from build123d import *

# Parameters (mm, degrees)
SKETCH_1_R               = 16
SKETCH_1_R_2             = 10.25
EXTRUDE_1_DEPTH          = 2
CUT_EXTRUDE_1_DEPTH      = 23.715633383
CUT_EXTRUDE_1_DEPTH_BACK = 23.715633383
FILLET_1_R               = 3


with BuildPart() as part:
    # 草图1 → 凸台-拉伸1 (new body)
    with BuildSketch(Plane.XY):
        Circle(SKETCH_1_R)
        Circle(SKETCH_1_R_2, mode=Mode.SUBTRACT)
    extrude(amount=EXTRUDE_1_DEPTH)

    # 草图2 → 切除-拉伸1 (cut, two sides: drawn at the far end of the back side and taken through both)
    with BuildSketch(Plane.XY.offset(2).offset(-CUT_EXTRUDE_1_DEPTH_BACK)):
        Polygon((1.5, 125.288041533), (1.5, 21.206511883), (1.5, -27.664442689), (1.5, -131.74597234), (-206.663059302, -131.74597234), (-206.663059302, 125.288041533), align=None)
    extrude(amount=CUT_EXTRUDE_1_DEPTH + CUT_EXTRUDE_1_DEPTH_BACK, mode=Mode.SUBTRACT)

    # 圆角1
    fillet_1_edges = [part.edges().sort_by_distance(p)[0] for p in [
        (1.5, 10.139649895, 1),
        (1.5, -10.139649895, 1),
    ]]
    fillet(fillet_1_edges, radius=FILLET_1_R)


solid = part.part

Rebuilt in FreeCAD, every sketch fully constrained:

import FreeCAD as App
import Part
import Sketcher
Q = App.Units.Quantity


def edges_at(feature, points):
    """Names of the edges that pass closest to the given points."""
    edges = feature.Shape.Edges
    near = lambda p: min(range(len(edges)), key=lambda i: edges[i].distToShape(Part.Vertex(*p))[0])
    return sorted({f"Edge{near(p) + 1}" for p in points})


def add_polygon(sketch, points):
    """Adds a closed chain of lines whose ends are joined by coincident constraints."""
    first, n = sketch.GeometryCount, len(points)
    for a, b in zip(points, points[1:] + points[:1]):
        sketch.addGeometry(Part.LineSegment(App.Vector(*a, 0), App.Vector(*b, 0)), False)
    for i in range(n):
        sketch.addConstraint(Sketcher.Constraint("Coincident", first + i, 2, first + (i + 1) % n, 1))

doc = App.newDocument("Part")
body = doc.addObject("PartDesign::Body", "Body")

# Sketch on XY plane
sketch1 = body.newObject("Sketcher::SketchObject", "Sketch")
sketch1.AttachmentSupport = (doc.getObject("XY_Plane"), [""])
sketch1.MapMode = "FlatFace"
sketch1.addGeometry(Part.Circle(App.Vector(0, 0, 0), App.Vector(0, 0, 1), 16), False)
sketch1.addGeometry(Part.Circle(App.Vector(0, 0, 0), App.Vector(0, 0, 1), 10), False)
sketch1.addConstraint(Sketcher.Constraint("Coincident", 0, 3, -1, 1))
sketch1.addConstraint(Sketcher.Constraint("Coincident", 1, 3, -1, 1))
sketch1.addConstraint(Sketcher.Constraint("Diameter", 0, Q("32 mm")))
sketch1.addConstraint(Sketcher.Constraint("Diameter", 1, Q("20.5 mm")))
pad1 = body.newObject("PartDesign::Pad", "Pad")
pad1.Profile = sketch1
pad1.Length = 2

# Sketch on XY plane
sketch2 = body.newObject("Sketcher::SketchObject", "Sketch001")
sketch2.AttachmentSupport = (doc.getObject("XY_Plane"), [""])
sketch2.MapMode = "FlatFace"
sketch2.AttachmentOffset = App.Placement(App.Vector(0, 0, 2), App.Rotation())
add_polygon(sketch2, [(2, -132), (2, 125), (-207, 125), (-207, -132)])  # lines 0-3
sketch2.addConstraint(Sketcher.Constraint("Vertical", 0))
sketch2.addConstraint(Sketcher.Constraint("Horizontal", 1))
sketch2.addConstraint(Sketcher.Constraint("Vertical", 2))
sketch2.addConstraint(Sketcher.Constraint("Horizontal", 3))
sketch2.addConstraint(Sketcher.Constraint("DistanceX", -1, 1, 0, 2, Q("1.5 mm")))
sketch2.addConstraint(Sketcher.Constraint("DistanceX", 1, 2, 1, 1, Q("208.163059 mm")))
sketch2.addConstraint(Sketcher.Constraint("DistanceY", 0, 1, 0, 2, Q("257.034014 mm")))
sketch2.addConstraint(Sketcher.Constraint("DistanceY", -1, 1, 0, 2, Q("125.288042 mm")))
pocket1 = body.newObject("PartDesign::Pocket", "Pocket")
pocket1.Profile = sketch2
pocket1.Type = "ThroughAll"
pocket1.Midplane = True
doc.recompute()

fillet = body.newObject("PartDesign::Fillet", "Fillet")
fillet.Base = (pocket1, edges_at(pocket1, [(1.5, 10.14, 1), (1.5, -10.14, 1)]))
fillet.Radius = 3

doc.recompute()
